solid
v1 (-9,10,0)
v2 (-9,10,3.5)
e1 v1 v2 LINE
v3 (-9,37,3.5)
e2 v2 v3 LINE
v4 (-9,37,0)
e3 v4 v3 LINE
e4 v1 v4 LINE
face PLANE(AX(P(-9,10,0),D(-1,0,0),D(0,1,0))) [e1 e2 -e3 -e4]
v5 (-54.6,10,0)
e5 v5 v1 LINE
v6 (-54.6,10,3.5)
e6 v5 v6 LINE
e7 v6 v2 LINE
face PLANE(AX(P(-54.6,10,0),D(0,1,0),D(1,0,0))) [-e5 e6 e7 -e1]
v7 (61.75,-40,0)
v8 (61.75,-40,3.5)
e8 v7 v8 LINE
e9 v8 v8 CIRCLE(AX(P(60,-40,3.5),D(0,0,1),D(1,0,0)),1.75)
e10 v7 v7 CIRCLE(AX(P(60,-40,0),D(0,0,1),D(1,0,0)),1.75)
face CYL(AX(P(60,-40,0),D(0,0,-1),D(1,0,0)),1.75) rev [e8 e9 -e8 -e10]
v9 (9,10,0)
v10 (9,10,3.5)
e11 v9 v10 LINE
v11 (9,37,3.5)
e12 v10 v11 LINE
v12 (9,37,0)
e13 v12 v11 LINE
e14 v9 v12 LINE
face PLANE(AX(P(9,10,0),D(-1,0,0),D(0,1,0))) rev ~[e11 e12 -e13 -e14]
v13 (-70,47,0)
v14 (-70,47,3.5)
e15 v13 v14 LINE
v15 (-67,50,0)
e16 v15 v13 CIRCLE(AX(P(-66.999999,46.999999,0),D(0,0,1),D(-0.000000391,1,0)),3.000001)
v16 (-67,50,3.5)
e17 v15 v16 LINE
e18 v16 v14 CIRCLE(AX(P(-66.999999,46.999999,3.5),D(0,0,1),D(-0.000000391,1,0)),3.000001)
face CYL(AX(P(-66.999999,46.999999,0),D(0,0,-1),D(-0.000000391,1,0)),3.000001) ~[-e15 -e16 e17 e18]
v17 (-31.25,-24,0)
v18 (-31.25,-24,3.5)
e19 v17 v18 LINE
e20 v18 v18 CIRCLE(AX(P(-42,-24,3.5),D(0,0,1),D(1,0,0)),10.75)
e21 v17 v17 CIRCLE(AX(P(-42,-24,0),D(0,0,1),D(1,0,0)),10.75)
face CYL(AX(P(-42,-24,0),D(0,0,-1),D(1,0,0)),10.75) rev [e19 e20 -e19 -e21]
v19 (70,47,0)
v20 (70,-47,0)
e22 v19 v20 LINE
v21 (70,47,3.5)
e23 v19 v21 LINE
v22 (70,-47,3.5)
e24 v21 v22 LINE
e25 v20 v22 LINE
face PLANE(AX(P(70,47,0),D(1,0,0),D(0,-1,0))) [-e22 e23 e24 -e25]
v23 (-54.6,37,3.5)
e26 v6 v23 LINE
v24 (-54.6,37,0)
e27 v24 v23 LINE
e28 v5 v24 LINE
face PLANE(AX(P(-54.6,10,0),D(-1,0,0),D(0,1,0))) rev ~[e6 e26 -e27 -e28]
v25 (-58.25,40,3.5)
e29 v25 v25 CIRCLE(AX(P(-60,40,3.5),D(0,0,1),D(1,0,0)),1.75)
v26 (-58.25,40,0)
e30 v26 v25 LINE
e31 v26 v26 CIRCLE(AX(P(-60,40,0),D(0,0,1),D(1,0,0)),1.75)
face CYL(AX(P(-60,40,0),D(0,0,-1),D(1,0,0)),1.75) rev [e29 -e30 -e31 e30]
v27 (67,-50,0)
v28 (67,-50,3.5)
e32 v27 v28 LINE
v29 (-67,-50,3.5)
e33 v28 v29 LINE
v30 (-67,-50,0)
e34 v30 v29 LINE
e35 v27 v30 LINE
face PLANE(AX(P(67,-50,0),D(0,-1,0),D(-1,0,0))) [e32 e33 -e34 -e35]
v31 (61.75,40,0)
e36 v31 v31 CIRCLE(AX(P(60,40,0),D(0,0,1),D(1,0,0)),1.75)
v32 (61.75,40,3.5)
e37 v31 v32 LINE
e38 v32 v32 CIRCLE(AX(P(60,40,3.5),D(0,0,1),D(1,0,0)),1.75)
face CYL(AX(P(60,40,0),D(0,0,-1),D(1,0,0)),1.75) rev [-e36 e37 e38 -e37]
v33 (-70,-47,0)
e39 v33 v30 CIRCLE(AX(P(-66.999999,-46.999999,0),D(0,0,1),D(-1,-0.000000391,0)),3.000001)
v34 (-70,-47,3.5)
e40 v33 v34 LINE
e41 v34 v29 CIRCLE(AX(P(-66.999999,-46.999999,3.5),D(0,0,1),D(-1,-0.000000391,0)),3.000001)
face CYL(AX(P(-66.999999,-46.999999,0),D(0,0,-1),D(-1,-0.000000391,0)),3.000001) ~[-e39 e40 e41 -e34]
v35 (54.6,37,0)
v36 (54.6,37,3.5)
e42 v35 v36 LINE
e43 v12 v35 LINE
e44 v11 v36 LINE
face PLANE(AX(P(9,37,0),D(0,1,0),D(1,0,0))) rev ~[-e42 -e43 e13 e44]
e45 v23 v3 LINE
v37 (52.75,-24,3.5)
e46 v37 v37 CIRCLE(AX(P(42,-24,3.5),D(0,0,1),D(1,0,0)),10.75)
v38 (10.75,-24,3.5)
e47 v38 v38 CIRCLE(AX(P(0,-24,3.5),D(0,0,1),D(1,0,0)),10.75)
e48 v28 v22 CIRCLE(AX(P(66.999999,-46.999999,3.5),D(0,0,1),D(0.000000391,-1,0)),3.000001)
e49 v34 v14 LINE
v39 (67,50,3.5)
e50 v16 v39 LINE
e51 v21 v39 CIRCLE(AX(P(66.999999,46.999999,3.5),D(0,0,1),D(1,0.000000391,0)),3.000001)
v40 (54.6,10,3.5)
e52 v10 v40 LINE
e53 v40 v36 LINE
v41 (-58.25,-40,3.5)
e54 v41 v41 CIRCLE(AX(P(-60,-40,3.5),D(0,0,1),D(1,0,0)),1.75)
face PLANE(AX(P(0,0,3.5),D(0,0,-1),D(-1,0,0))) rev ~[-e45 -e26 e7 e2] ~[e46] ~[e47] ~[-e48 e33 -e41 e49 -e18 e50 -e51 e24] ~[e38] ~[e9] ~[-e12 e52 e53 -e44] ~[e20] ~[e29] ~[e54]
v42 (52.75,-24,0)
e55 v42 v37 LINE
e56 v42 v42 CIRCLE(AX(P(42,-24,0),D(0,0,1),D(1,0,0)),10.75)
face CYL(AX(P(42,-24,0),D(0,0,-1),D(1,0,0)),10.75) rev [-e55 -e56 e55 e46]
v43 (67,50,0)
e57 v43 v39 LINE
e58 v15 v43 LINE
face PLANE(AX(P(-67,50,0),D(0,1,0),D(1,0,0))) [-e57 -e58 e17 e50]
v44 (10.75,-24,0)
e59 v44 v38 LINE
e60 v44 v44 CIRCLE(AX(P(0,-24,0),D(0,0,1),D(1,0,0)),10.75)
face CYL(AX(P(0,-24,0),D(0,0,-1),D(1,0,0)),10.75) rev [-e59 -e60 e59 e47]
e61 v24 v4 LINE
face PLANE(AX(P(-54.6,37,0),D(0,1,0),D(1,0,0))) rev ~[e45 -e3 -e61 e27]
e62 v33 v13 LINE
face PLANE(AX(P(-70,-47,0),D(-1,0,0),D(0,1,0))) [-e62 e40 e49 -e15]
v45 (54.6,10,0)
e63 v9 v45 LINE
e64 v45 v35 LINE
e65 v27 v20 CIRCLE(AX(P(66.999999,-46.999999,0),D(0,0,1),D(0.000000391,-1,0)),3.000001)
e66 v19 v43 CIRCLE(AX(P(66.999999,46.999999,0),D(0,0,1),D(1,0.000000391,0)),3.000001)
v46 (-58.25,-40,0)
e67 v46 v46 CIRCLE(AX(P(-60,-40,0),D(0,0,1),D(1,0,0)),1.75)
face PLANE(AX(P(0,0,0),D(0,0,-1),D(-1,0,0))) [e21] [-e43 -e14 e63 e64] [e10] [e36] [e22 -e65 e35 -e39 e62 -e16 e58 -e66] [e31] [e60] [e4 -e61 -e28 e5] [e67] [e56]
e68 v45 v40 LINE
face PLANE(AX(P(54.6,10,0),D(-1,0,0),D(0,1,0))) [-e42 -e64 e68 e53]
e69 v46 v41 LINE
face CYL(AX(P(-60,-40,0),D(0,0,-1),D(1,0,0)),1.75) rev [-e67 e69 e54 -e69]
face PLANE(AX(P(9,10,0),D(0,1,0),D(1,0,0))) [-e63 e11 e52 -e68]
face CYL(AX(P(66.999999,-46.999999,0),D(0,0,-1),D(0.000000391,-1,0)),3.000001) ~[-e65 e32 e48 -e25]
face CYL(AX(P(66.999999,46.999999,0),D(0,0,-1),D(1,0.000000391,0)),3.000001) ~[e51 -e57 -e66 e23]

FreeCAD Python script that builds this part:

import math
import FreeCAD as App
import Part
import Sketcher
Q = App.Units.Quantity

doc = App.newDocument("Part")
body = doc.addObject("PartDesign::Body", "Body")

# Sketch on XY plane
sketch1 = body.newObject("Sketcher::SketchObject", "Sketch")
sketch1.AttachmentSupport = (doc.getObject("XY_Plane"), [""])
sketch1.MapMode = "FlatFace"
sketch1.addGeometry(Part.LineSegment(App.Vector(67, 50, 0), App.Vector(-67, 50, 0)), False)
sketch1.addGeometry(Part.ArcOfCircle(Part.Circle(App.Vector(-67, 47, 0), App.Vector(0, 0, 1), 3), math.radians(90), math.radians(180)), False)
sketch1.addGeometry(Part.LineSegment(App.Vector(-70, 47, 0), App.Vector(-70, -47, 0)), False)
sketch1.addGeometry(Part.ArcOfCircle(Part.Circle(App.Vector(-67, -47, 0), App.Vector(0, 0, 1), 3), math.radians(-180), math.radians(-90)), False)
sketch1.addGeometry(Part.LineSegment(App.Vector(-67, -50, 0), App.Vector(67, -50, 0)), False)
sketch1.addGeometry(Part.ArcOfCircle(Part.Circle(App.Vector(67, -47, 0), App.Vector(0, 0, 1), 3), math.radians(-90), math.radians(0)), False)
sketch1.addGeometry(Part.LineSegment(App.Vector(70, -47, 0), App.Vector(70, 47, 0)), False)
sketch1.addGeometry(Part.ArcOfCircle(Part.Circle(App.Vector(67, 47, 0), App.Vector(0, 0, 1), 3), math.radians(0), math.radians(90)), False)
sketch1.addGeometry(Part.Circle(App.Vector(60, -40, 0), App.Vector(0, 0, 1), 1.8), False)
sketch1.addGeometry(Part.Circle(App.Vector(42, -24, 0), App.Vector(0, 0, 1), 10.8), False)
sketch1.addGeometry(Part.Circle(App.Vector(0, -24, 0), App.Vector(0, 0, 1), 10.8), False)
sketch1.addGeometry(Part.Circle(App.Vector(-60, -40, 0), App.Vector(0, 0, 1), 1.8), False)
sketch1.addGeometry(Part.Circle(App.Vector(-42, -24, 0), App.Vector(0, 0, 1), 10.8), False)
sketch1.addGeometry(Part.LineSegment(App.Vector(9, 10, 0), App.Vector(9, 37, 0)), False)
sketch1.addGeometry(Part.LineSegment(App.Vector(9, 37, 0), App.Vector(54.6, 37, 0)), False)
sketch1.addGeometry(Part.LineSegment(App.Vector(54.6, 37, 0), App.Vector(54.6, 10, 0)), False)
sketch1.addGeometry(Part.LineSegment(App.Vector(54.6, 10, 0), App.Vector(9, 10, 0)), False)
sketch1.addGeometry(Part.Circle(App.Vector(60, 40, 0), App.Vector(0, 0, 1), 1.8), False)
sketch1.addGeometry(Part.LineSegment(App.Vector(-54.6, 10, 0), App.Vector(-54.6, 37, 0)), False)
sketch1.addGeometry(Part.LineSegment(App.Vector(-54.6, 37, 0), App.Vector(-9, 37, 0)), False)
sketch1.addGeometry(Part.LineSegment(App.Vector(-9, 37, 0), App.Vector(-9, 10, 0)), False)
sketch1.addGeometry(Part.LineSegment(App.Vector(-9, 10, 0), App.Vector(-54.6, 10, 0)), False)
sketch1.addGeometry(Part.Circle(App.Vector(-60, 40, 0), App.Vector(0, 0, 1), 1.8), False)
sketch1.addConstraint(Sketcher.Constraint("Tangent", 0, 2, 1, 1))
sketch1.addConstraint(Sketcher.Constraint("Tangent", 1, 2, 2, 1))
sketch1.addConstraint(Sketcher.Constraint("Tangent", 2, 2, 3, 1))
sketch1.addConstraint(Sketcher.Constraint("Tangent", 3, 2, 4, 1))
sketch1.addConstraint(Sketcher.Constraint("Tangent", 4, 2, 5, 1))
sketch1.addConstraint(Sketcher.Constraint("Tangent", 5, 2, 6, 1))
sketch1.addConstraint(Sketcher.Constraint("Tangent", 6, 2, 7, 1))
sketch1.addConstraint(Sketcher.Constraint("Tangent", 7, 2, 0, 1))
sketch1.addConstraint(Sketcher.Constraint("Coincident", 13, 2, 14, 1))
sketch1.addConstraint(Sketcher.Constraint("Coincident", 14, 2, 15, 1))
sketch1.addConstraint(Sketcher.Constraint("Coincident", 15, 2, 16, 1))
sketch1.addConstraint(Sketcher.Constraint("Coincident", 16, 2, 13, 1))
sketch1.addConstraint(Sketcher.Constraint("Coincident", 18, 2, 19, 1))
sketch1.addConstraint(Sketcher.Constraint("Coincident", 19, 2, 20, 1))
sketch1.addConstraint(Sketcher.Constraint("Coincident", 20, 2, 21, 1))
sketch1.addConstraint(Sketcher.Constraint("Coincident", 21, 2, 18, 1))
sketch1.addConstraint(Sketcher.Constraint("Horizontal", 0))
sketch1.addConstraint(Sketcher.Constraint("Vertical", 2))
sketch1.addConstraint(Sketcher.Constraint("Horizontal", 4))
sketch1.addConstraint(Sketcher.Constraint("Vertical", 6))
sketch1.addConstraint(Sketcher.Constraint("Vertical", 13))
sketch1.addConstraint(Sketcher.Constraint("Horizontal", 14))
sketch1.addConstraint(Sketcher.Constraint("Vertical", 15))
sketch1.addConstraint(Sketcher.Constraint("Horizontal", 16))
sketch1.addConstraint(Sketcher.Constraint("Vertical", 18))
sketch1.addConstraint(Sketcher.Constraint("Horizontal", 19))
sketch1.addConstraint(Sketcher.Constraint("Vertical", 20))
sketch1.addConstraint(Sketcher.Constraint("Horizontal", 21))
sketch1.addConstraint(Sketcher.Constraint("Equal", 1, 3))
sketch1.addConstraint(Sketcher.Constraint("Equal", 3, 5))
sketch1.addConstraint(Sketcher.Constraint("Equal", 5, 7))
sketch1.addConstraint(Sketcher.Constraint("Equal", 9, 10))
sketch1.addConstraint(Sketcher.Constraint("Equal", 8, 11))
sketch1.addConstraint(Sketcher.Constraint("Equal", 10, 12))
sketch1.addConstraint(Sketcher.Constraint("Equal", 11, 17))
sketch1.addConstraint(Sketcher.Constraint("Equal", 17, 22))
sketch1.addConstraint(Sketcher.Constraint("Symmetric", 1, 3, 5, 3, -1, 1))
sketch1.addConstraint(Sketcher.Constraint("Symmetric", 11, 3, 17, 3, -1, 1))
sketch1.addConstraint(Sketcher.Constraint("Symmetric", 8, 3, 22, 3, -1, 1))
sketch1.addConstraint(Sketcher.Constraint("Symmetric", 8, 3, 11, 3, -2))
sketch1.addConstraint(Sketcher.Constraint("Symmetric", 9, 3, 12, 3, -2))
sketch1.addConstraint(Sketcher.Constraint("Symmetric", 14, 2, 18, 2, -2))
sketch1.addConstraint(Sketcher.Constraint("Symmetric", 16, 2, 20, 2, -2))
sketch1.addConstraint(Sketcher.Constraint("PointOnObject", 10, 3, -2))
sketch1.addConstraint(Sketcher.Constraint("Horizontal", 9, 3, 10, 3))
sketch1.addConstraint(Sketcher.Constraint("Radius", 1, Q("3.000001 mm")))
sketch1.addConstraint(Sketcher.Constraint("Diameter", 8, Q("3.5 mm")))
sketch1.addConstraint(Sketcher.Constraint("Diameter", 9, Q("21.5 mm")))
sketch1.addConstraint(Sketcher.Constraint("DistanceX", 0, 2, 0, 1, Q("134 mm")))
sketch1.addConstraint(Sketcher.Constraint("DistanceY", 2, 2, 2, 1, Q("94 mm")))
sketch1.addConstraint(Sketcher.Constraint("DistanceY", 13, 1, 13, 2, Q("27 mm")))
sketch1.addConstraint(Sketcher.Constraint("DistanceX", 14, 1, 14, 2, Q("45.6 mm")))
sketch1.addConstraint(Sketcher.Constraint("DistanceX", -1, 1, 8, 3, Q("60 mm")))
sketch1.addConstraint(Sketcher.Constraint("DistanceY", 8, 3, -1, 1, Q("40 mm")))
sketch1.addConstraint(Sketcher.Constraint("DistanceX", -1, 1, 9, 3, Q("42 mm")))
sketch1.addConstraint(Sketcher.Constraint("DistanceY", 9, 3, -1, 1, Q("24 mm")))
sketch1.addConstraint(Sketcher.Constraint("DistanceX", -1, 1, 13, 2, Q("9 mm")))
sketch1.addConstraint(Sketcher.Constraint("DistanceY", -1, 1, 13, 2, Q("37 mm")))
pad1 = body.newObject("PartDesign::Pad", "Pad")
pad1.Profile = sketch1
pad1.Length = 3.5

doc.recompute()
